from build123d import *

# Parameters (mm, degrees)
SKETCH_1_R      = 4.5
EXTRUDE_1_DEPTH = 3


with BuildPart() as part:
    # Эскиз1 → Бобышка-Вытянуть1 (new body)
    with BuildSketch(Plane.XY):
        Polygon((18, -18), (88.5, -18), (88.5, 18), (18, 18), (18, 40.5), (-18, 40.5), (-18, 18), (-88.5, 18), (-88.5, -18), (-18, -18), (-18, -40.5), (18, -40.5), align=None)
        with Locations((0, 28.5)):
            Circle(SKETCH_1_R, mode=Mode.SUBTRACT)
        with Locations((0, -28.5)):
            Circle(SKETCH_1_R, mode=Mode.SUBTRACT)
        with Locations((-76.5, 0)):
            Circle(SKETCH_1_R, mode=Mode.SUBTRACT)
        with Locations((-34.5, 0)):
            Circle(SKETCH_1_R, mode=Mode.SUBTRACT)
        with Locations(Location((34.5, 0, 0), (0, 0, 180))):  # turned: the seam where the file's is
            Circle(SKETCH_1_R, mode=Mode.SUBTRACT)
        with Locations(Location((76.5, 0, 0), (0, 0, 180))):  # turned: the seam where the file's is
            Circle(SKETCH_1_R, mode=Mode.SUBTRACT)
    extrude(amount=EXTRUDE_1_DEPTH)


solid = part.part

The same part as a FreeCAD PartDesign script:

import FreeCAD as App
import Part
import Sketcher

V = App.Vector

doc = App.newDocument("Part")
params = doc.addObject("Spreadsheet::Sheet", "Params")
for row, (alias, value) in enumerate([
    ("sketch1_diameter", "9 mm"),
    ("sketch1_width", "36 mm"),
    ("sketch1_width2", "70.5 mm"),
    ("sketch1_height", "22.5 mm"),
    ("pad1_length", "3 mm"),
], start=1):
    params.set(f"A{row}", alias)
    params.set(f"B{row}", "=" + value)
    params.setAlias(f"B{row}", alias)

body = doc.addObject("PartDesign::Body", "Body")

# Sketch on XY plane
sketch1 = body.newObject("Sketcher::SketchObject", "Sketch")
sketch1.AttachmentSupport = (doc.getObject("XY_Plane"), [""])
sketch1.MapMode = "FlatFace"
sketch1.addGeometry(Part.LineSegment(V(18, -18, 0), V(88.5, -18, 0)), False)
sketch1.addGeometry(Part.LineSegment(V(88.5, -18, 0), V(88.5, 18, 0)), False)
sketch1.addGeometry(Part.LineSegment(V(88.5, 18, 0), V(18, 18, 0)), False)
sketch1.addGeometry(Part.LineSegment(V(18, 18, 0), V(18, 40.5, 0)), False)
sketch1.addGeometry(Part.LineSegment(V(18, 40.5, 0), V(-18, 40.5, 0)), False)
sketch1.addGeometry(Part.LineSegment(V(-18, 40.5, 0), V(-18, 18, 0)), False)
sketch1.addGeometry(Part.LineSegment(V(-18, 18, 0), V(-88.5, 18, 0)), False)
sketch1.addGeometry(Part.LineSegment(V(-88.5, 18, 0), V(-88.5, -18, 0)), False)
sketch1.addGeometry(Part.LineSegment(V(-88.5, -18, 0), V(-18, -18, 0)), False)
sketch1.addGeometry(Part.LineSegment(V(-18, -18, 0), V(-18, -40.5, 0)), False)
sketch1.addGeometry(Part.LineSegment(V(-18, -40.5, 0), V(18, -40.5, 0)), False)
sketch1.addGeometry(Part.LineSegment(V(18, -40.5, 0), V(18, -18, 0)), False)
sketch1.addGeometry(Part.Circle(V(0, -28.5, 0), V(0, 0, 1), 4.5), False)
sketch1.addGeometry(Part.Circle(V(-76.5, 0, 0), V(0, 0, 1), 4.5), False)
sketch1.addGeometry(Part.Circle(V(-34.5, 0, 0), V(0, 0, 1), 4.5), False)
sketch1.addGeometry(Part.Circle(V(34.5, 0, 0), V(0, 0, 1), 4.5), False)
sketch1.addGeometry(Part.Circle(V(76.5, 0, 0), V(0, 0, 1), 4.5), False)
sketch1.addGeometry(Part.Circle(V(0, 28.5, 0), V(0, 0, 1), 4.5), False)
sketch1.addConstraint(Sketcher.Constraint("Coincident", 0, 2, 1, 1))
sketch1.addConstraint(Sketcher.Constraint("Coincident", 1, 2, 2, 1))
sketch1.addConstraint(Sketcher.Constraint("Coincident", 2, 2, 3, 1))
sketch1.addConstraint(Sketcher.Constraint("Coincident", 3, 2, 4, 1))
sketch1.addConstraint(Sketcher.Constraint("Coincident", 4, 2, 5, 1))
sketch1.addConstraint(Sketcher.Constraint("Coincident", 5, 2, 6, 1))
sketch1.addConstraint(Sketcher.Constraint("Coincident", 6, 2, 7, 1))
sketch1.addConstraint(Sketcher.Constraint("Coincident", 7, 2, 8, 1))
sketch1.addConstraint(Sketcher.Constraint("Coincident", 8, 2, 9, 1))
sketch1.addConstraint(Sketcher.Constraint("Coincident", 9, 2, 10, 1))
sketch1.addConstraint(Sketcher.Constraint("Coincident", 10, 2, 11, 1))
sketch1.addConstraint(Sketcher.Constraint("Coincident", 11, 2, 0, 1))
sketch1.addConstraint(Sketcher.Constraint("Horizontal", 0))
sketch1.addConstraint(Sketcher.Constraint("Vertical", 1))
sketch1.addConstraint(Sketcher.Constraint("Horizontal", 2))
sketch1.addConstraint(Sketcher.Constraint("Vertical", 3))
sketch1.addConstraint(Sketcher.Constraint("Horizontal", 4))
sketch1.addConstraint(Sketcher.Constraint("Vertical", 5))
sketch1.addConstraint(Sketcher.Constraint("Horizontal", 6))
sketch1.addConstraint(Sketcher.Constraint("Vertical", 7))
sketch1.addConstraint(Sketcher.Constraint("Horizontal", 8))
sketch1.addConstraint(Sketcher.Constraint("Vertical", 9))
sketch1.addConstraint(Sketcher.Constraint("Horizontal", 10))
sketch1.addConstraint(Sketcher.Constraint("Vertical", 11))
sketch1.addConstraint(Sketcher.Constraint("Equal", 12, 13))
sketch1.addConstraint(Sketcher.Constraint("Equal", 13, 14))
sketch1.addConstraint(Sketcher.Constraint("Equal", 14, 15))
sketch1.addConstraint(Sketcher.Constraint("Equal", 15, 16))
sketch1.addConstraint(Sketcher.Constraint("Equal", 16, 17))
sketch1.addConstraint(Sketcher.Constraint("Symmetric", 14, 3, 15, 3, -1, 1))
sketch1.addConstraint(Sketcher.Constraint("Symmetric", 13, 3, 16, 3, -1, 1))
sketch1.addConstraint(Sketcher.Constraint("Symmetric", 12, 3, 17, 3, -1, 1))
sketch1.addConstraint(Sketcher.Constraint("Symmetric", 0, 2, 6, 2, -1, 1))
sketch1.addConstraint(Sketcher.Constraint("Symmetric", 2, 2, 8, 2, -1, 1))
sketch1.addConstraint(Sketcher.Constraint("Symmetric", 4, 2, 10, 2, -1, 1))
sketch1.addConstraint(Sketcher.Constraint("Symmetric", 2, 2, 5, 2, -2))
sketch1.addConstraint(Sketcher.Constraint("PointOnObject", 12, 3, -2))
sketch1.addConstraint(Sketcher.Constraint("PointOnObject", 13, 3, -1))
sketch1.addConstraint(Sketcher.Constraint("PointOnObject", 14, 3, -1))
sketch1.addConstraint(Sketcher.Constraint("Equal", 10, 1))
sketch1.addConstraint(Sketcher.Constraint("Diameter", 12, 9.0))
sketch1.addConstraint(Sketcher.Constraint("DistanceX", 4, 2, 4, 1, 36.0))
sketch1.addConstraint(Sketcher.Constraint("DistanceX", 0, 1, 0, 2, 70.5))
sketch1.addConstraint(Sketcher.Constraint("DistanceY", 3, 1, 3, 2, 22.5))
sketch1.addConstraint(Sketcher.Constraint("DistanceX", 13, 3, 14, 3, 42.0))
sketch1.addConstraint(Sketcher.Constraint("DistanceX", 14, 3, 15, 3, 69.0))
sketch1.addConstraint(Sketcher.Constraint("DistanceY", 12, 3, 17, 3, 57.0))
sketch1.setExpression("Constraints[40]", "Params.sketch1_diameter")
sketch1.setExpression("Constraints[41]", "Params.sketch1_width")
sketch1.setExpression("Constraints[42]", "Params.sketch1_width2")
sketch1.setExpression("Constraints[43]", "Params.sketch1_height")
pad1 = body.newObject("PartDesign::Pad", "Pad")
pad1.Profile = sketch1
pad1.setExpression("Length", "Params.pad1_length")

doc.recompute()
